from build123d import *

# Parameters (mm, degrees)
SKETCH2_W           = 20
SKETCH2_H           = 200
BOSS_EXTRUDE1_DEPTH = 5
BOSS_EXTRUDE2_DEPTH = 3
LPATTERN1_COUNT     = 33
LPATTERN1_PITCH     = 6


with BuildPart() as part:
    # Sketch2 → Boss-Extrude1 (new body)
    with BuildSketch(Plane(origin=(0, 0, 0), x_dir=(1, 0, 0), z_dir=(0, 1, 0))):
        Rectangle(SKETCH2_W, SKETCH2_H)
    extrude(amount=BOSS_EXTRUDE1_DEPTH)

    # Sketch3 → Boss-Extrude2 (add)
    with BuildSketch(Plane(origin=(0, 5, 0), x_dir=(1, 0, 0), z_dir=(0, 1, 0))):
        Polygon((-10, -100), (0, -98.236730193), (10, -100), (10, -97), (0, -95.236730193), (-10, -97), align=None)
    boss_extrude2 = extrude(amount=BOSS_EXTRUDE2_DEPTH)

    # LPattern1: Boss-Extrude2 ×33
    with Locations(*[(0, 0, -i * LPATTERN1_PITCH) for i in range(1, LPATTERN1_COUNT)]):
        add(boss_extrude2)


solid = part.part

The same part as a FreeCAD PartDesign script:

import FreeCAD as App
import Part
import Sketcher
from FreeCAD import Vector
Q = App.Units.Quantity


def add_polygon(sketch, points):
    """Adds a closed chain of lines whose ends are joined by coincident constraints."""
    first, n = sketch.GeometryCount, len(points)
    for a, b in zip(points, points[1:] + points[:1]):
        sketch.addGeometry(Part.LineSegment(App.Vector(*a, 0), App.Vector(*b, 0)), False)
    for i in range(n):
        sketch.addConstraint(Sketcher.Constraint("Coincident", first + i, 2, first + (i + 1) % n, 1))

doc = App.newDocument("Part")
body = doc.addObject("PartDesign::Body", "Body")

# Sketch on XZ plane
sketch1 = doc.addObject("Sketcher::SketchObject", "Sketch")
body.addObject(sketch1)
sketch1.AttachmentSupport = (doc.XZ_Plane, [""])
sketch1.MapMode = "FlatFace"
add_polygon(sketch1, [(-10, -100), (-10, 100), (10, 100), (10, -100)])  # lines 0-3
sketch1.addConstraint([
    Sketcher.Constraint("Vertical", 0),
    Sketcher.Constraint("Horizontal", 1),
    Sketcher.Constraint("Vertical", 2),
    Sketcher.Constraint("Horizontal", 3),
    Sketcher.Constraint("Symmetric", 0, 2, 2, 2, -1, 1),
    Sketcher.Constraint("DistanceX", 1, 1, 1, 2, Q("20 mm")),
    Sketcher.Constraint("DistanceY", 0, 1, 0, 2, Q("200 mm")),
])
pad1 = doc.addObject("PartDesign::Pad", "Pad")
body.addObject(pad1)
pad1.Profile = sketch1
pad1.Length = 5
pad1.Reversed = True

# Sketch on XZ plane
sketch2 = doc.addObject("Sketcher::SketchObject", "Sketch001")
body.addObject(sketch2)
sketch2.AttachmentSupport = (doc.XZ_Plane, [""])
sketch2.MapMode = "FlatFace"
sketch2.AttachmentOffset = App.Placement(Vector(0, 0, -5), App.Rotation())
add_polygon(sketch2, [(-10, 100), (0, 98.23673), (10, 100), (10, 97), (0, 95.23673), (-10, 97)])  # lines 0-5
sketch2.addConstraint([
    Sketcher.Constraint("Vertical", 2),
    Sketcher.Constraint("Vertical", 5),
    Sketcher.Constraint("Symmetric", 2, 2, 4, 2, -2),
    Sketcher.Constraint("PointOnObject", 0, 2, -2),
    Sketcher.Constraint("PointOnObject", 3, 2, -2),
    Sketcher.Constraint("Parallel", 1, 3),
    Sketcher.Constraint("Parallel", 0, 4),
    Sketcher.Constraint("DistanceY", 2, 2, 2, 1, Q("3 mm")),
    Sketcher.Constraint("Angle", 0, Q("-10 deg")),
    Sketcher.Constraint("DistanceX", -1, 1, 1, 2, Q("10 mm")),
    Sketcher.Constraint("DistanceY", -1, 1, 1, 2, Q("100 mm")),
])
pad2 = doc.addObject("PartDesign::Pad", "Pad001")
body.addObject(pad2)
pad2.Profile = sketch2
pad2.Length = 3
pad2.Reversed = True
doc.recompute()

linearpattern = doc.addObject("PartDesign::LinearPattern", "LinearPattern")
body.addObject(linearpattern)
linearpattern.Originals = [pad2]
linearpattern.Direction = (doc.Z_Axis, [""])
linearpattern.Mode = "offset"
linearpattern.Offset = 6
linearpattern.Occurrences = 33
linearpattern.Reversed = True
body.Tip = linearpattern

doc.recompute()
